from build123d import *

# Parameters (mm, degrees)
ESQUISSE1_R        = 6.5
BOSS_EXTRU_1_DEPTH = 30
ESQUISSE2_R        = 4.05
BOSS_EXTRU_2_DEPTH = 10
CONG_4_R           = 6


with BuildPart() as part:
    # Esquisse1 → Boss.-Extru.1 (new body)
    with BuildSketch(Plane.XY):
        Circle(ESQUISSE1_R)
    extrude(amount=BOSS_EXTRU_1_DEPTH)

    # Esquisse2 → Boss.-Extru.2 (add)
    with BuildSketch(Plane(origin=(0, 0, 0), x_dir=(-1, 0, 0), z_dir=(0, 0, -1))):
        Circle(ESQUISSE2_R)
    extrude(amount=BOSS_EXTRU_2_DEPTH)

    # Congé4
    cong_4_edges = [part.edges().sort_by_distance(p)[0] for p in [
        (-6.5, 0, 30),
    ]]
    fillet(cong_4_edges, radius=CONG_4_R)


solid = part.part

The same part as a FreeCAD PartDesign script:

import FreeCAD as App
import Part
import Sketcher

V = App.Vector


def edges_at(feature, points):
    """Names of the edges that pass closest to the given points."""
    edges = feature.Shape.Edges
    near = lambda p: min(range(len(edges)), key=lambda i: edges[i].distToShape(Part.Vertex(*p))[0])
    return sorted({f"Edge{near(p) + 1}" for p in points})

doc = App.newDocument("Part")
body = doc.addObject("PartDesign::Body", "Body")

# Sketch on XY plane
sketch1 = doc.addObject("Sketcher::SketchObject", "Sketch")
body.addObject(sketch1)
sketch1.AttachmentSupport = (doc.XY_Plane, [""])
sketch1.MapMode = "FlatFace"
sketch1.addGeometry(Part.Circle(V(0, 0, 0), V(0, 0, 1), 6), False)
sketch1.addConstraint([
    Sketcher.Constraint("Coincident", 0, 3, -1, 1),
    Sketcher.Constraint("Diameter", 0, 13.0),
])
pad1 = doc.addObject("PartDesign::Pad", "Pad")
body.addObject(pad1)
pad1.Profile = sketch1
pad1.Length = 30

# Sketch on XY plane
sketch2 = doc.addObject("Sketcher::SketchObject", "Sketch001")
body.addObject(sketch2)
sketch2.AttachmentSupport = (doc.XY_Plane, [""])
sketch2.MapMode = "FlatFace"
sketch2.addGeometry(Part.Circle(V(0, 0, 0), V(0, 0, 1), 4), False)
sketch2.addConstraint([
    Sketcher.Constraint("Coincident", 0, 3, -1, 1),
    Sketcher.Constraint("Diameter", 0, 8.1),
])
pad2 = doc.addObject("PartDesign::Pad", "Pad001")
body.addObject(pad2)
pad2.Profile = sketch2
pad2.Length = 10
pad2.Reversed = True
doc.recompute()

fillet = doc.addObject("PartDesign::Fillet", "Fillet")
body.addObject(fillet)
fillet.Base = (pad2, edges_at(pad2, [(-6.5, 0, 30)]))
fillet.Radius = 6

doc.recompute()
